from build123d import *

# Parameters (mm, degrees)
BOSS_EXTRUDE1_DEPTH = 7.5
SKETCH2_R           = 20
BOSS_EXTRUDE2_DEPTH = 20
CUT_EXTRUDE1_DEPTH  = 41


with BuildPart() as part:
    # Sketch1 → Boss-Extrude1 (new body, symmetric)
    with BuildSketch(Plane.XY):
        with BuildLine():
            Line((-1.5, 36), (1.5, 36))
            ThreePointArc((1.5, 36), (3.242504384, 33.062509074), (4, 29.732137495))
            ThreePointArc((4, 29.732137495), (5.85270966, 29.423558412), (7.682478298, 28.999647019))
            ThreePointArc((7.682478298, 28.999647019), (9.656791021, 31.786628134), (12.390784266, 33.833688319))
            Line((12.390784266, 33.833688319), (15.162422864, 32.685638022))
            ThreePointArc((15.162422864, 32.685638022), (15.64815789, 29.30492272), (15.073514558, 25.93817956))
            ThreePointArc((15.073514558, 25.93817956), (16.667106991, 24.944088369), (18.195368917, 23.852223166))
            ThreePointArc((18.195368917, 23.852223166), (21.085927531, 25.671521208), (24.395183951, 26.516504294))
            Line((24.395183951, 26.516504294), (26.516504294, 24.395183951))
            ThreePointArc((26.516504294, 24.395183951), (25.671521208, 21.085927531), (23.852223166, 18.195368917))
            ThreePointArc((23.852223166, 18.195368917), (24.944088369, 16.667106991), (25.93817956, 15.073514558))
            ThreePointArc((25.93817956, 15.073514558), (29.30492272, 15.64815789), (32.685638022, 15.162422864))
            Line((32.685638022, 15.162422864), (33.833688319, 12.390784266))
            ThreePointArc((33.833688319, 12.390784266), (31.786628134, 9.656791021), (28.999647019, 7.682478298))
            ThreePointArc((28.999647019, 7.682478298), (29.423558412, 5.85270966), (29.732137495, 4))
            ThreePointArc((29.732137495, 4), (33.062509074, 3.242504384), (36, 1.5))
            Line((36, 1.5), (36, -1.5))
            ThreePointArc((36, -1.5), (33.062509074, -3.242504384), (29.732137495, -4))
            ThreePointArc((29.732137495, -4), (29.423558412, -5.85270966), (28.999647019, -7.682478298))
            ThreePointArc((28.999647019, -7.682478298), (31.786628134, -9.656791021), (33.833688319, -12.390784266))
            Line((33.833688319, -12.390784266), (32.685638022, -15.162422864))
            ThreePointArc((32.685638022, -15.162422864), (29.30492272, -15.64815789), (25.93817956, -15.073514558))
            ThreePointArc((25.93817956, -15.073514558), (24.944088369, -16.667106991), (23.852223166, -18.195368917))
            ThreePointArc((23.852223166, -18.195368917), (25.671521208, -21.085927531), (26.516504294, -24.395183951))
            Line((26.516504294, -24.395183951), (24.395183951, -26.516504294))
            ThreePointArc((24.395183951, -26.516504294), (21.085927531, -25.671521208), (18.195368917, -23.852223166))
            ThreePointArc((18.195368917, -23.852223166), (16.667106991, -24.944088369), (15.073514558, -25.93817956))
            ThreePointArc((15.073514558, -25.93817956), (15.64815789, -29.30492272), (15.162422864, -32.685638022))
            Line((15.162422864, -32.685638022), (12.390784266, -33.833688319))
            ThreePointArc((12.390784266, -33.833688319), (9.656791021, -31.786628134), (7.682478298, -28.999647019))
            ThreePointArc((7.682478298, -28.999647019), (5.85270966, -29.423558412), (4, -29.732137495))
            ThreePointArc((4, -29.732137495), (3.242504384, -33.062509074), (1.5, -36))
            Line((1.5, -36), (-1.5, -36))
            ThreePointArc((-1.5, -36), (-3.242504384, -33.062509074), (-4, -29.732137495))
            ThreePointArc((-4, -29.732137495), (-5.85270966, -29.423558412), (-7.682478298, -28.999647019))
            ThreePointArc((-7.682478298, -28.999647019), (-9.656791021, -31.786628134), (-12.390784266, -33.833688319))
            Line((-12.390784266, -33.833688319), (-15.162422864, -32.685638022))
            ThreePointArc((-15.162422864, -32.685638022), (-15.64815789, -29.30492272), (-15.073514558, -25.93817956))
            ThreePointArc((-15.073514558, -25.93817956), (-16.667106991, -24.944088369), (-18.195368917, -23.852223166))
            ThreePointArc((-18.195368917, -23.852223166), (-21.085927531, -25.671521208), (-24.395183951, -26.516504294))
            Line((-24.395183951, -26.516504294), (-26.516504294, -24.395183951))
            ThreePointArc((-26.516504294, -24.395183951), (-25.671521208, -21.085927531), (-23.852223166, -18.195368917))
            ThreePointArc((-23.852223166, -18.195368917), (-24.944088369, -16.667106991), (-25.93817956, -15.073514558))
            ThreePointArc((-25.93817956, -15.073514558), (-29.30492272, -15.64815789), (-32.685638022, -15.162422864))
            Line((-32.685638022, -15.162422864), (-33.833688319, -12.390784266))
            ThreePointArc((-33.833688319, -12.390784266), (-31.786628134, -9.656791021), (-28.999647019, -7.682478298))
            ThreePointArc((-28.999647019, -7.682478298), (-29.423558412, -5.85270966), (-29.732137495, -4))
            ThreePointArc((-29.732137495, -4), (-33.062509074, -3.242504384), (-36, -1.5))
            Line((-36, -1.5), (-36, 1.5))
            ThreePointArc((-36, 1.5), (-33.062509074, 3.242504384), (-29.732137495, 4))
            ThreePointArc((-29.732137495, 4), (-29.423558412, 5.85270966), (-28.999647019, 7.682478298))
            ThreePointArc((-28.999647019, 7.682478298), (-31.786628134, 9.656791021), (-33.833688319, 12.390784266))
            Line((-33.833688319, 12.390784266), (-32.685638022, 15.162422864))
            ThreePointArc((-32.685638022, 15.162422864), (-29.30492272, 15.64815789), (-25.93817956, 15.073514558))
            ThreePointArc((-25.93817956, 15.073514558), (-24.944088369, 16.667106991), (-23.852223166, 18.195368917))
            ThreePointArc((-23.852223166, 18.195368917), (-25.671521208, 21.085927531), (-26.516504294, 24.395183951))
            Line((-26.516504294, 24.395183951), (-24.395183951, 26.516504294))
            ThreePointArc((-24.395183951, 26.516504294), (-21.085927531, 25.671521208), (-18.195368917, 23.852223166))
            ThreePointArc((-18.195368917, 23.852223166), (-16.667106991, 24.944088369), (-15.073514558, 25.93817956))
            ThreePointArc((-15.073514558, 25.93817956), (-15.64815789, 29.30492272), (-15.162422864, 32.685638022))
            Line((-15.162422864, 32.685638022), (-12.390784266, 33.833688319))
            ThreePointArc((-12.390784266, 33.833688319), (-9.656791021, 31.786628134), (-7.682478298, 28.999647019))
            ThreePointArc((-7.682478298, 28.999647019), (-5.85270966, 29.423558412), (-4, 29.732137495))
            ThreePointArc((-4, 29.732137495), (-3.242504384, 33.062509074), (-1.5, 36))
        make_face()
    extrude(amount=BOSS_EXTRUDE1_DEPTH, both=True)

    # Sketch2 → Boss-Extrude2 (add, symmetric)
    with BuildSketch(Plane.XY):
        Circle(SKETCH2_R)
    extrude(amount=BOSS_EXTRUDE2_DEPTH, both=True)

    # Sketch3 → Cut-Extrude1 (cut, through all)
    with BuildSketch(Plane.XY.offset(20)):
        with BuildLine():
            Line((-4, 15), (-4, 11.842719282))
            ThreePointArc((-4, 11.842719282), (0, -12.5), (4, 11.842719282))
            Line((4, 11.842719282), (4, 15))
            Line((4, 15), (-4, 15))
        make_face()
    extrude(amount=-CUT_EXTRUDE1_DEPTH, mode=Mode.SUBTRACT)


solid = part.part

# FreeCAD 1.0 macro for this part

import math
import FreeCAD as App
import Part
import Sketcher
from FreeCAD import Vector
Q = App.Units.Quantity

doc = App.newDocument("Part")
body = doc.addObject("PartDesign::Body", "Body")

# Sketch on XY plane
sketch1 = body.newObject("Sketcher::SketchObject", "Sketch")
sketch1.AttachmentSupport = (doc.getObject("XY_Plane"), [""])
sketch1.MapMode = "FlatFace"
sketch1.addGeometry([
    Part.LineSegment(Vector(1.5, 36, 0), Vector(-1.5, 36, 0)),  # 0
    Part.ArcOfCircle(Part.Circle(Vector(6.974751, 28.987254, 0), Vector(0, 0, 1), 11), math.radians(140.392686), math.radians(176.11715)),  # 1
    Part.ArcOfCircle(Part.Circle(Vector(0, 0, 0), Vector(0, 0, 1), 30), math.radians(97.662256), math.radians(104.837744)),  # 2
    Part.ArcOfCircle(Part.Circle(Vector(-17.536771, 24.111609, 0), Vector(0, 0, 1), 11), math.radians(26.38285), math.radians(62.107314)),  # 3
    Part.LineSegment(Vector(-12.390784, 33.833688, 0), Vector(-15.162423, 32.685638, 0)),  # 4
    Part.ArcOfCircle(Part.Circle(Vector(-4.649113, 29.449852, 0), Vector(0, 0, 1), 11), math.radians(162.892686), math.radians(198.61715)),  # 5
    Part.ArcOfCircle(Part.Circle(Vector(0, 0, 0), Vector(0, 0, 1), 30), math.radians(120.162256), math.radians(127.337744)),  # 6
    Part.ArcOfCircle(Part.Circle(Vector(-25.428977, 15.565191, 0), Vector(0, 0, 1), 11), math.radians(48.88285), math.radians(84.607314)),  # 7
    Part.LineSegment(Vector(-24.395184, 26.516504, 0), Vector(-26.516504, 24.395184, 0)),  # 8
    Part.ArcOfCircle(Part.Circle(Vector(-15.565191, 25.428977, 0), Vector(0, 0, 1), 11), math.radians(-174.607314), math.radians(-138.88285)),  # 9
    Part.ArcOfCircle(Part.Circle(Vector(0, 0, 0), Vector(0, 0, 1), 30), math.radians(142.662256), math.radians(149.837744)),  # 10
    Part.ArcOfCircle(Part.Circle(Vector(-29.449852, 4.649113, 0), Vector(0, 0, 1), 11), math.radians(71.38285), math.radians(107.107314)),  # 11
    Part.LineSegment(Vector(-32.685638, 15.162423, 0), Vector(-33.833688, 12.390784, 0)),  # 12
    Part.ArcOfCircle(Part.Circle(Vector(-24.111609, 17.536771, 0), Vector(0, 0, 1), 11), math.radians(-152.107314), math.radians(-116.38285)),  # 13
    Part.ArcOfCircle(Part.Circle(Vector(0, 0, 0), Vector(0, 0, 1), 30), math.radians(165.162256), math.radians(172.337744)),  # 14
    Part.ArcOfCircle(Part.Circle(Vector(-28.987254, -6.974751, 0), Vector(0, 0, 1), 11), math.radians(93.88285), math.radians(129.607314)),  # 15
    Part.LineSegment(Vector(-36, 1.5, 0), Vector(-36, -1.5, 0)),  # 16
    Part.ArcOfCircle(Part.Circle(Vector(-28.987254, 6.974751, 0), Vector(0, 0, 1), 11), math.radians(-129.607314), math.radians(-93.88285)),  # 17
    Part.ArcOfCircle(Part.Circle(Vector(0, 0, 0), Vector(0, 0, 1), 30), math.radians(-172.337744), math.radians(-165.162256)),  # 18
    Part.ArcOfCircle(Part.Circle(Vector(-24.111609, -17.536771, 0), Vector(0, 0, 1), 11), math.radians(116.38285), math.radians(152.107314)),  # 19
    Part.LineSegment(Vector(-33.833688, -12.390784, 0), Vector(-32.685638, -15.162423, 0)),  # 20
    Part.ArcOfCircle(Part.Circle(Vector(-29.449852, -4.649113, 0), Vector(0, 0, 1), 11), math.radians(-107.107314), math.radians(-71.38285)),  # 21
    Part.ArcOfCircle(Part.Circle(Vector(0, 0, 0), Vector(0, 0, 1), 30), math.radians(-149.837744), math.radians(-142.662256)),  # 22
    Part.ArcOfCircle(Part.Circle(Vector(-15.565191, -25.428977, 0), Vector(0, 0, 1), 11), math.radians(138.88285), math.radians(174.607314)),  # 23
    Part.LineSegment(Vector(-26.516504, -24.395184, 0), Vector(-24.395184, -26.516504, 0)),  # 24
    Part.ArcOfCircle(Part.Circle(Vector(-25.428977, -15.565191, 0), Vector(0, 0, 1), 11), math.radians(-84.607314), math.radians(-48.88285)),  # 25
    Part.ArcOfCircle(Part.Circle(Vector(0, 0, 0), Vector(0, 0, 1), 30), math.radians(-127.337744), math.radians(-120.162256)),  # 26
    Part.ArcOfCircle(Part.Circle(Vector(-4.649113, -29.449852, 0), Vector(0, 0, 1), 11), math.radians(161.38285), math.radians(197.107314)),  # 27
    Part.LineSegment(Vector(-15.162423, -32.685638, 0), Vector(-12.390784, -33.833688, 0)),  # 28
    Part.ArcOfCircle(Part.Circle(Vector(-17.536771, -24.111609, 0), Vector(0, 0, 1), 11), math.radians(-62.107314), math.radians(-26.38285)),  # 29
    Part.ArcOfCircle(Part.Circle(Vector(0, 0, 0), Vector(0, 0, 1), 30), math.radians(-104.837744), math.radians(-97.662256)),  # 30
    Part.ArcOfCircle(Part.Circle(Vector(6.974751, -28.987254, 0), Vector(0, 0, 1), 11), math.radians(-176.11715), math.radians(-140.392686)),  # 31
    Part.LineSegment(Vector(-1.5, -36, 0), Vector(1.5, -36, 0)),  # 32
    Part.ArcOfCircle(Part.Circle(Vector(-6.974751, -28.987254, 0), Vector(0, 0, 1), 11), math.radians(-39.607314), math.radians(-3.88285)),  # 33
    Part.ArcOfCircle(Part.Circle(Vector(0, 0, 0), Vector(0, 0, 1), 30), math.radians(-82.337744), math.radians(-75.162256)),  # 34
    Part.ArcOfCircle(Part.Circle(Vector(17.536771, -24.111609, 0), Vector(0, 0, 1), 11), math.radians(-153.61715), math.radians(-117.892686)),  # 35
    Part.LineSegment(Vector(12.390784, -33.833688, 0), Vector(15.162423, -32.685638, 0)),  # 36
    Part.ArcOfCircle(Part.Circle(Vector(4.649113, -29.449852, 0), Vector(0, 0, 1), 11), math.radians(-17.107314), math.radians(18.61715)),  # 37
    Part.ArcOfCircle(Part.Circle(Vector(0, 0, 0), Vector(0, 0, 1), 30), math.radians(-59.837744), math.radians(-52.662256)),  # 38
    Part.ArcOfCircle(Part.Circle(Vector(25.428977, -15.565191, 0), Vector(0, 0, 1), 11), math.radians(-131.11715), math.radians(-95.392686)),  # 39
    Part.LineSegment(Vector(24.395184, -26.516504, 0), Vector(26.516504, -24.395184, 0)),  # 40
    Part.ArcOfCircle(Part.Circle(Vector(15.565191, -25.428977, 0), Vector(0, 0, 1), 11), math.radians(5.392686), math.radians(41.11715)),  # 41
    Part.ArcOfCircle(Part.Circle(Vector(0, 0, 0), Vector(0, 0, 1), 30), math.radians(-37.337744), math.radians(-30.162256)),  # 42
    Part.ArcOfCircle(Part.Circle(Vector(29.449852, -4.649113, 0), Vector(0, 0, 1), 11), math.radians(-108.61715), math.radians(-72.892686)),  # 43
    Part.LineSegment(Vector(32.685638, -15.162423, 0), Vector(33.833688, -12.390784, 0)),  # 44
    Part.ArcOfCircle(Part.Circle(Vector(24.111609, -17.536771, 0), Vector(0, 0, 1), 11), math.radians(27.892686), math.radians(63.61715)),  # 45
    Part.ArcOfCircle(Part.Circle(Vector(0, 0, 0), Vector(0, 0, 1), 30), math.radians(-14.837744), math.radians(-7.662256)),  # 46
    Part.ArcOfCircle(Part.Circle(Vector(28.987254, 6.974751, 0), Vector(0, 0, 1), 11), math.radians(-86.11715), math.radians(-50.392686)),  # 47
    Part.LineSegment(Vector(36, -1.5, 0), Vector(36, 1.5, 0)),  # 48
    Part.ArcOfCircle(Part.Circle(Vector(28.987254, -6.974751, 0), Vector(0, 0, 1), 11), math.radians(50.392686), math.radians(86.11715)),  # 49
    Part.ArcOfCircle(Part.Circle(Vector(0, 0, 0), Vector(0, 0, 1), 30), math.radians(7.662256), math.radians(14.837744)),  # 50
    Part.ArcOfCircle(Part.Circle(Vector(24.111609, 17.536771, 0), Vector(0, 0, 1), 11), math.radians(-63.61715), math.radians(-27.892686)),  # 51
    Part.LineSegment(Vector(33.833688, 12.390784, 0), Vector(32.685638, 15.162423, 0)),  # 52
    Part.ArcOfCircle(Part.Circle(Vector(29.449852, 4.649113, 0), Vector(0, 0, 1), 11), math.radians(72.892686), math.radians(108.61715)),  # 53
    Part.ArcOfCircle(Part.Circle(Vector(0, 0, 0), Vector(0, 0, 1), 30), math.radians(30.162256), math.radians(37.337744)),  # 54
    Part.ArcOfCircle(Part.Circle(Vector(15.565191, 25.428977, 0), Vector(0, 0, 1), 11), math.radians(-41.11715), math.radians(-5.392686)),  # 55
    Part.LineSegment(Vector(26.516504, 24.395184, 0), Vector(24.395184, 26.516504, 0)),  # 56
    Part.ArcOfCircle(Part.Circle(Vector(25.428977, 15.565191, 0), Vector(0, 0, 1), 11), math.radians(95.392686), math.radians(131.11715)),  # 57
    Part.ArcOfCircle(Part.Circle(Vector(0, 0, 0), Vector(0, 0, 1), 30), math.radians(52.662256), math.radians(59.837744)),  # 58
    Part.ArcOfCircle(Part.Circle(Vector(4.649113, 29.449852, 0), Vector(0, 0, 1), 11), math.radians(-18.61715), math.radians(17.107314)),  # 59
    Part.LineSegment(Vector(15.162423, 32.685638, 0), Vector(12.390784, 33.833688, 0)),  # 60
    Part.ArcOfCircle(Part.Circle(Vector(17.536771, 24.111609, 0), Vector(0, 0, 1), 11), math.radians(117.892686), math.radians(153.61715)),  # 61
    Part.ArcOfCircle(Part.Circle(Vector(0, 0, 0), Vector(0, 0, 1), 30), math.radians(75.162256), math.radians(82.337744)),  # 62
    Part.ArcOfCircle(Part.Circle(Vector(-6.974751, 28.987254, 0), Vector(0, 0, 1), 11), math.radians(3.88285), math.radians(39.607314)),  # 63
], False)
sketch1.addConstraint([
    Sketcher.Constraint("Coincident", 0, 2, 1, 1),
    Sketcher.Constraint("Coincident", 1, 2, 2, 1),
    Sketcher.Constraint("Coincident", 2, 2, 3, 1),
    Sketcher.Constraint("Coincident", 3, 2, 4, 1),
    Sketcher.Constraint("Coincident", 4, 2, 5, 1),
    Sketcher.Constraint("Coincident", 5, 2, 6, 1),
    Sketcher.Constraint("Coincident", 6, 2, 7, 1),
    Sketcher.Constraint("Coincident", 7, 2, 8, 1),
    Sketcher.Constraint("Coincident", 8, 2, 9, 1),
    Sketcher.Constraint("Coincident", 9, 2, 10, 1),
    Sketcher.Constraint("Coincident", 10, 2, 11, 1),
    Sketcher.Constraint("Coincident", 11, 2, 12, 1),
    Sketcher.Constraint("Coincident", 12, 2, 13, 1),
    Sketcher.Constraint("Coincident", 13, 2, 14, 1),
    Sketcher.Constraint("Coincident", 14, 2, 15, 1),
    Sketcher.Constraint("Coincident", 15, 2, 16, 1),
    Sketcher.Constraint("Coincident", 16, 2, 17, 1),
    Sketcher.Constraint("Coincident", 17, 2, 18, 1),
    Sketcher.Constraint("Coincident", 18, 2, 19, 1),
    Sketcher.Constraint("Coincident", 19, 2, 20, 1),
    Sketcher.Constraint("Coincident", 20, 2, 21, 1),
    Sketcher.Constraint("Coincident", 21, 2, 22, 1),
    Sketcher.Constraint("Coincident", 22, 2, 23, 1),
    Sketcher.Constraint("Coincident", 23, 2, 24, 1),
    Sketcher.Constraint("Coincident", 24, 2, 25, 1),
    Sketcher.Constraint("Coincident", 25, 2, 26, 1),
    Sketcher.Constraint("Coincident", 26, 2, 27, 1),
    Sketcher.Constraint("Coincident", 27, 2, 28, 1),
    Sketcher.Constraint("Coincident", 28, 2, 29, 1),
    Sketcher.Constraint("Coincident", 29, 2, 30, 1),
    Sketcher.Constraint("Coincident", 30, 2, 31, 1),
    Sketcher.Constraint("Coincident", 31, 2, 32, 1),
    Sketcher.Constraint("Coincident", 32, 2, 33, 1),
    Sketcher.Constraint("Coincident", 33, 2, 34, 1),
    Sketcher.Constraint("Coincident", 34, 2, 35, 1),
    Sketcher.Constraint("Coincident", 35, 2, 36, 1),
    Sketcher.Constraint("Coincident", 36, 2, 37, 1),
    Sketcher.Constraint("Coincident", 37, 2, 38, 1),
    Sketcher.Constraint("Coincident", 38, 2, 39, 1),
    Sketcher.Constraint("Coincident", 39, 2, 40, 1),
    Sketcher.Constraint("Coincident", 40, 2, 41, 1),
    Sketcher.Constraint("Coincident", 41, 2, 42, 1),
    Sketcher.Constraint("Coincident", 42, 2, 43, 1),
    Sketcher.Constraint("Coincident", 43, 2, 44, 1),
    Sketcher.Constraint("Coincident", 44, 2, 45, 1),
    Sketcher.Constraint("Coincident", 45, 2, 46, 1),
    Sketcher.Constraint("Coincident", 46, 2, 47, 1),
    Sketcher.Constraint("Coincident", 47, 2, 48, 1),
    Sketcher.Constraint("Coincident", 48, 2, 49, 1),
    Sketcher.Constraint("Coincident", 49, 2, 50, 1),
    Sketcher.Constraint("Coincident", 50, 2, 51, 1),
    Sketcher.Constraint("Coincident", 51, 2, 52, 1),
    Sketcher.Constraint("Coincident", 52, 2, 53, 1),
    Sketcher.Constraint("Coincident", 53, 2, 54, 1),
    Sketcher.Constraint("Coincident", 54, 2, 55, 1),
    Sketcher.Constraint("Coincident", 55, 2, 56, 1),
    Sketcher.Constraint("Coincident", 56, 2, 57, 1),
    Sketcher.Constraint("Coincident", 57, 2, 58, 1),
    Sketcher.Constraint("Coincident", 58, 2, 59, 1),
    Sketcher.Constraint("Coincident", 59, 2, 60, 1),
    Sketcher.Constraint("Coincident", 60, 2, 61, 1),
    Sketcher.Constraint("Coincident", 61, 2, 62, 1),
    Sketcher.Constraint("Coincident", 62, 2, 63, 1),
    Sketcher.Constraint("Coincident", 63, 2, 0, 1),
    Sketcher.Constraint("Horizontal", 0),
    Sketcher.Constraint("Vertical", 16),
    Sketcher.Constraint("Horizontal", 32),
    Sketcher.Constraint("Vertical", 48),
    Sketcher.Constraint("Coincident", 2, 3, -1, 1),
    Sketcher.Constraint("Coincident", 6, 3, -1, 1),
    Sketcher.Constraint("Coincident", 10, 3, -1, 1),
    Sketcher.Constraint("Coincident", 14, 3, -1, 1),
    Sketcher.Constraint("Coincident", 18, 3, -1, 1),
    Sketcher.Constraint("Coincident", 22, 3, -1, 1),
    Sketcher.Constraint("Coincident", 26, 3, -1, 1),
    Sketcher.Constraint("Coincident", 30, 3, -1, 1),
    Sketcher.Constraint("Coincident", 34, 3, -1, 1),
    Sketcher.Constraint("Coincident", 38, 3, -1, 1),
    Sketcher.Constraint("Coincident", 42, 3, -1, 1),
    Sketcher.Constraint("Coincident", 46, 3, -1, 1),
    Sketcher.Constraint("Coincident", 50, 3, -1, 1),
    Sketcher.Constraint("Coincident", 54, 3, -1, 1),
    Sketcher.Constraint("Coincident", 58, 3, -1, 1),
    Sketcher.Constraint("Coincident", 62, 3, -1, 1),
    Sketcher.Constraint("Equal", 1, 3),
    Sketcher.Constraint("Equal", 3, 5),
    Sketcher.Constraint("Equal", 2, 6),
    Sketcher.Constraint("Equal", 5, 7),
    Sketcher.Constraint("Equal", 7, 9),
    Sketcher.Constraint("Equal", 6, 10),
    Sketcher.Constraint("Equal", 9, 11),
    Sketcher.Constraint("Equal", 11, 13),
    Sketcher.Constraint("Equal", 10, 14),
    Sketcher.Constraint("Equal", 13, 15),
    Sketcher.Constraint("Equal", 15, 17),
    Sketcher.Constraint("Equal", 14, 18),
    Sketcher.Constraint("Equal", 17, 19),
    Sketcher.Constraint("Equal", 19, 21),
    Sketcher.Constraint("Equal", 18, 22),
    Sketcher.Constraint("Equal", 21, 23),
    Sketcher.Constraint("Equal", 23, 25),
    Sketcher.Constraint("Equal", 22, 26),
    Sketcher.Constraint("Equal", 25, 27),
    Sketcher.Constraint("Equal", 27, 29),
    Sketcher.Constraint("Equal", 26, 30),
    Sketcher.Constraint("Equal", 29, 31),
    Sketcher.Constraint("Equal", 31, 33),
    Sketcher.Constraint("Equal", 30, 34),
    Sketcher.Constraint("Equal", 33, 35),
    Sketcher.Constraint("Equal", 35, 37),
    Sketcher.Constraint("Equal", 34, 38),
    Sketcher.Constraint("Equal", 37, 39),
    Sketcher.Constraint("Equal", 39, 41),
    Sketcher.Constraint("Equal", 38, 42),
    Sketcher.Constraint("Equal", 41, 43),
    Sketcher.Constraint("Equal", 43, 45),
    Sketcher.Constraint("Equal", 42, 46),
    Sketcher.Constraint("Equal", 45, 47),
    Sketcher.Constraint("Equal", 47, 49),
    Sketcher.Constraint("Equal", 46, 50),
    Sketcher.Constraint("Equal", 49, 51),
    Sketcher.Constraint("Equal", 51, 53),
    Sketcher.Constraint("Equal", 50, 54),
    Sketcher.Constraint("Equal", 53, 55),
    Sketcher.Constraint("Equal", 55, 57),
    Sketcher.Constraint("Equal", 54, 58),
    Sketcher.Constraint("Equal", 57, 59),
    Sketcher.Constraint("Equal", 59, 61),
    Sketcher.Constraint("Equal", 58, 62),
    Sketcher.Constraint("Equal", 61, 63),
    Sketcher.Constraint("Symmetric", 1, 3, 33, 3, -1, 1),
    Sketcher.Constraint("Symmetric", 3, 3, 35, 3, -1, 1),
    Sketcher.Constraint("Symmetric", 5, 3, 37, 3, -1, 1),
    Sketcher.Constraint("Symmetric", 7, 3, 39, 3, -1, 1),
    Sketcher.Constraint("Symmetric", 9, 3, 41, 3, -1, 1),
    Sketcher.Constraint("Symmetric", 11, 3, 43, 3, -1, 1),
    Sketcher.Constraint("Symmetric", 13, 3, 45, 3, -1, 1),
    Sketcher.Constraint("Symmetric", 15, 3, 47, 3, -1, 1),
    Sketcher.Constraint("Symmetric", 17, 3, 49, 3, -1, 1),
    Sketcher.Constraint("Symmetric", 19, 3, 51, 3, -1, 1),
    Sketcher.Constraint("Symmetric", 21, 3, 53, 3, -1, 1),
    Sketcher.Constraint("Symmetric", 23, 3, 55, 3, -1, 1),
    Sketcher.Constraint("Symmetric", 25, 3, 57, 3, -1, 1),
    Sketcher.Constraint("Symmetric", 27, 3, 59, 3, -1, 1),
    Sketcher.Constraint("Symmetric", 29, 3, 61, 3, -1, 1),
    Sketcher.Constraint("Symmetric", 31, 3, 63, 3, -1, 1),
    Sketcher.Constraint("Symmetric", 31, 3, 33, 3, -2),
    Sketcher.Constraint("Symmetric", 29, 3, 35, 3, -2),
    Sketcher.Constraint("Symmetric", 27, 3, 37, 3, -2),
    Sketcher.Constraint("Symmetric", 25, 3, 39, 3, -2),
    Sketcher.Constraint("Symmetric", 23, 3, 41, 3, -2),
    Sketcher.Constraint("Symmetric", 21, 3, 43, 3, -2),
    Sketcher.Constraint("Symmetric", 19, 3, 45, 3, -2),
    Sketcher.Constraint("Symmetric", 17, 3, 47, 3, -2),
    Sketcher.Constraint("Perpendicular", 4, 20),
    Sketcher.Constraint("Perpendicular", 8, 24),
    Sketcher.Constraint("Perpendicular", 12, 28),
    Sketcher.Constraint("Perpendicular", 20, 36),
    Sketcher.Constraint("Perpendicular", 24, 40),
    Sketcher.Constraint("Perpendicular", 28, 44),
    Sketcher.Constraint("Perpendicular", 36, 52),
    Sketcher.Constraint("Perpendicular", 40, 56),
    Sketcher.Constraint("Perpendicular", 44, 60),
    Sketcher.Constraint("Horizontal", 28, 2, 35, 2),
    Sketcher.Constraint("Horizontal", 27, 2, 36, 2),
    Sketcher.Constraint("Horizontal", 24, 2, 39, 2),
    Sketcher.Constraint("Horizontal", 23, 2, 40, 2),
    Sketcher.Constraint("Horizontal", 20, 2, 43, 2),
    Sketcher.Constraint("Horizontal", 16, 2, 47, 2),
    Sketcher.Constraint("Horizontal", 12, 2, 51, 2),
    Sketcher.Constraint("Horizontal", 8, 2, 55, 2),
    Sketcher.Constraint("Horizontal", 4, 2, 59, 2),
    Sketcher.Constraint("Vertical", 12, 2, 19, 2),
    Sketcher.Constraint("Vertical", 8, 2, 23, 2),
    Sketcher.Constraint("Vertical", 4, 2, 27, 2),
    Sketcher.Constraint("Vertical", 0, 2, 31, 2),
    Sketcher.Constraint("Equal", 32, 16),
    Sketcher.Constraint("Equal", 4, 8),
    Sketcher.Constraint("Equal", 8, 12),
    Sketcher.Constraint("Radius", 1, Q("11 mm")),
    Sketcher.Constraint("Radius", 2, Q("30 mm")),
    Sketcher.Constraint("DistanceX", 0, 2, 0, 1, Q("3 mm")),
    Sketcher.Constraint("Distance", 4, Q("3 mm")),
    Sketcher.Constraint("DistanceY", -1, 1, 0, 2, Q("36 mm")),
    Sketcher.Constraint("DistanceX", 1, 2, -1, 1, Q("4 mm")),
    Sketcher.Constraint("DistanceY", -1, 1, 14, 2, Q("4 mm")),
    Sketcher.Constraint("DistanceX", 15, 2, -1, 1, Q("36 mm")),
    Sketcher.Constraint("Angle", 4, Q("-157.5 deg")),
    Sketcher.Constraint("DistanceX", 3, 3, -1, 1, Q("17.536771 mm")),
    Sketcher.Constraint("DistanceY", -1, 1, 3, 3, Q("24.111609 mm")),
    Sketcher.Constraint("DistanceY", -1, 1, 7, 3, Q("15.565191 mm")),
    Sketcher.Constraint("DistanceX", 9, 3, -1, 1, Q("15.565191 mm")),
    Sketcher.Constraint("DistanceX", 13, 3, -1, 1, Q("24.111609 mm")),
    Sketcher.Constraint("DistanceY", -1, 1, 13, 3, Q("17.536771 mm")),
    Sketcher.Constraint("DistanceY", -1, 1, 3, 2, Q("33.833688 mm")),
    Sketcher.Constraint("DistanceY", -1, 1, 5, 2, Q("25.93818 mm")),
    Sketcher.Constraint("DistanceX", 6, 2, -1, 1, Q("18.195369 mm")),
    Sketcher.Constraint("DistanceY", -1, 1, 9, 2, Q("18.195369 mm")),
    Sketcher.Constraint("DistanceX", 10, 2, -1, 1, Q("25.93818 mm")),
    Sketcher.Constraint("DistanceX", 11, 2, -1, 1, Q("32.685638 mm")),
])
pad1 = body.newObject("PartDesign::Pad", "Pad")
pad1.Profile = sketch1
pad1.Length = 15
pad1.Midplane = True

# Sketch on XY plane
sketch2 = body.newObject("Sketcher::SketchObject", "Sketch001")
sketch2.AttachmentSupport = (doc.getObject("XY_Plane"), [""])
sketch2.MapMode = "FlatFace"
sketch2.addGeometry(Part.Circle(Vector(0, 0, 0), Vector(0, 0, 1), 20), False)
sketch2.addConstraint([
    Sketcher.Constraint("Coincident", 0, 3, -1, 1),
    Sketcher.Constraint("Diameter", 0, Q("40 mm")),
])
pad2 = body.newObject("PartDesign::Pad", "Pad001")
pad2.Profile = sketch2
pad2.Length = 40
pad2.Midplane = True

# Sketch on XY plane
sketch3 = body.newObject("Sketcher::SketchObject", "Sketch002")
sketch3.AttachmentSupport = (doc.getObject("XY_Plane"), [""])
sketch3.MapMode = "FlatFace"
sketch3.AttachmentOffset = App.Placement(Vector(0, 0, 20), App.Rotation())
sketch3.addGeometry([
    Part.LineSegment(Vector(-4, 15, 0), Vector(-4, 11.842719, 0)),
    Part.ArcOfCircle(Part.Circle(Vector(0, 0, 0), Vector(0, 0, 1), 12.5), math.radians(108.662925), math.radians(431.337075)),
    Part.LineSegment(Vector(4, 11.842719, 0), Vector(4, 15, 0)),
    Part.LineSegment(Vector(4, 15, 0), Vector(-4, 15, 0)),
], False)
sketch3.addConstraint([
    Sketcher.Constraint("Coincident", 0, 2, 1, 1),
    Sketcher.Constraint("Coincident", 1, 2, 2, 1),
    Sketcher.Constraint("Coincident", 2, 2, 3, 1),
    Sketcher.Constraint("Coincident", 3, 2, 0, 1),
    Sketcher.Constraint("Vertical", 0),
    Sketcher.Constraint("Vertical", 2),
    Sketcher.Constraint("Horizontal", 3),
    Sketcher.Constraint("Coincident", 1, 3, -1, 1),
    Sketcher.Constraint("Horizontal", 0, 2, 1, 2),
    Sketcher.Constraint("Radius", 1, Q("12.5 mm")),
    Sketcher.Constraint("DistanceX", 3, 2, 3, 1, Q("8 mm")),
    Sketcher.Constraint("DistanceY", -1, 1, 2, 2, Q("15 mm")),
])
pocket1 = body.newObject("PartDesign::Pocket", "Pocket")
pocket1.Profile = sketch3
pocket1.Type = "ThroughAll"

doc.recompute()
